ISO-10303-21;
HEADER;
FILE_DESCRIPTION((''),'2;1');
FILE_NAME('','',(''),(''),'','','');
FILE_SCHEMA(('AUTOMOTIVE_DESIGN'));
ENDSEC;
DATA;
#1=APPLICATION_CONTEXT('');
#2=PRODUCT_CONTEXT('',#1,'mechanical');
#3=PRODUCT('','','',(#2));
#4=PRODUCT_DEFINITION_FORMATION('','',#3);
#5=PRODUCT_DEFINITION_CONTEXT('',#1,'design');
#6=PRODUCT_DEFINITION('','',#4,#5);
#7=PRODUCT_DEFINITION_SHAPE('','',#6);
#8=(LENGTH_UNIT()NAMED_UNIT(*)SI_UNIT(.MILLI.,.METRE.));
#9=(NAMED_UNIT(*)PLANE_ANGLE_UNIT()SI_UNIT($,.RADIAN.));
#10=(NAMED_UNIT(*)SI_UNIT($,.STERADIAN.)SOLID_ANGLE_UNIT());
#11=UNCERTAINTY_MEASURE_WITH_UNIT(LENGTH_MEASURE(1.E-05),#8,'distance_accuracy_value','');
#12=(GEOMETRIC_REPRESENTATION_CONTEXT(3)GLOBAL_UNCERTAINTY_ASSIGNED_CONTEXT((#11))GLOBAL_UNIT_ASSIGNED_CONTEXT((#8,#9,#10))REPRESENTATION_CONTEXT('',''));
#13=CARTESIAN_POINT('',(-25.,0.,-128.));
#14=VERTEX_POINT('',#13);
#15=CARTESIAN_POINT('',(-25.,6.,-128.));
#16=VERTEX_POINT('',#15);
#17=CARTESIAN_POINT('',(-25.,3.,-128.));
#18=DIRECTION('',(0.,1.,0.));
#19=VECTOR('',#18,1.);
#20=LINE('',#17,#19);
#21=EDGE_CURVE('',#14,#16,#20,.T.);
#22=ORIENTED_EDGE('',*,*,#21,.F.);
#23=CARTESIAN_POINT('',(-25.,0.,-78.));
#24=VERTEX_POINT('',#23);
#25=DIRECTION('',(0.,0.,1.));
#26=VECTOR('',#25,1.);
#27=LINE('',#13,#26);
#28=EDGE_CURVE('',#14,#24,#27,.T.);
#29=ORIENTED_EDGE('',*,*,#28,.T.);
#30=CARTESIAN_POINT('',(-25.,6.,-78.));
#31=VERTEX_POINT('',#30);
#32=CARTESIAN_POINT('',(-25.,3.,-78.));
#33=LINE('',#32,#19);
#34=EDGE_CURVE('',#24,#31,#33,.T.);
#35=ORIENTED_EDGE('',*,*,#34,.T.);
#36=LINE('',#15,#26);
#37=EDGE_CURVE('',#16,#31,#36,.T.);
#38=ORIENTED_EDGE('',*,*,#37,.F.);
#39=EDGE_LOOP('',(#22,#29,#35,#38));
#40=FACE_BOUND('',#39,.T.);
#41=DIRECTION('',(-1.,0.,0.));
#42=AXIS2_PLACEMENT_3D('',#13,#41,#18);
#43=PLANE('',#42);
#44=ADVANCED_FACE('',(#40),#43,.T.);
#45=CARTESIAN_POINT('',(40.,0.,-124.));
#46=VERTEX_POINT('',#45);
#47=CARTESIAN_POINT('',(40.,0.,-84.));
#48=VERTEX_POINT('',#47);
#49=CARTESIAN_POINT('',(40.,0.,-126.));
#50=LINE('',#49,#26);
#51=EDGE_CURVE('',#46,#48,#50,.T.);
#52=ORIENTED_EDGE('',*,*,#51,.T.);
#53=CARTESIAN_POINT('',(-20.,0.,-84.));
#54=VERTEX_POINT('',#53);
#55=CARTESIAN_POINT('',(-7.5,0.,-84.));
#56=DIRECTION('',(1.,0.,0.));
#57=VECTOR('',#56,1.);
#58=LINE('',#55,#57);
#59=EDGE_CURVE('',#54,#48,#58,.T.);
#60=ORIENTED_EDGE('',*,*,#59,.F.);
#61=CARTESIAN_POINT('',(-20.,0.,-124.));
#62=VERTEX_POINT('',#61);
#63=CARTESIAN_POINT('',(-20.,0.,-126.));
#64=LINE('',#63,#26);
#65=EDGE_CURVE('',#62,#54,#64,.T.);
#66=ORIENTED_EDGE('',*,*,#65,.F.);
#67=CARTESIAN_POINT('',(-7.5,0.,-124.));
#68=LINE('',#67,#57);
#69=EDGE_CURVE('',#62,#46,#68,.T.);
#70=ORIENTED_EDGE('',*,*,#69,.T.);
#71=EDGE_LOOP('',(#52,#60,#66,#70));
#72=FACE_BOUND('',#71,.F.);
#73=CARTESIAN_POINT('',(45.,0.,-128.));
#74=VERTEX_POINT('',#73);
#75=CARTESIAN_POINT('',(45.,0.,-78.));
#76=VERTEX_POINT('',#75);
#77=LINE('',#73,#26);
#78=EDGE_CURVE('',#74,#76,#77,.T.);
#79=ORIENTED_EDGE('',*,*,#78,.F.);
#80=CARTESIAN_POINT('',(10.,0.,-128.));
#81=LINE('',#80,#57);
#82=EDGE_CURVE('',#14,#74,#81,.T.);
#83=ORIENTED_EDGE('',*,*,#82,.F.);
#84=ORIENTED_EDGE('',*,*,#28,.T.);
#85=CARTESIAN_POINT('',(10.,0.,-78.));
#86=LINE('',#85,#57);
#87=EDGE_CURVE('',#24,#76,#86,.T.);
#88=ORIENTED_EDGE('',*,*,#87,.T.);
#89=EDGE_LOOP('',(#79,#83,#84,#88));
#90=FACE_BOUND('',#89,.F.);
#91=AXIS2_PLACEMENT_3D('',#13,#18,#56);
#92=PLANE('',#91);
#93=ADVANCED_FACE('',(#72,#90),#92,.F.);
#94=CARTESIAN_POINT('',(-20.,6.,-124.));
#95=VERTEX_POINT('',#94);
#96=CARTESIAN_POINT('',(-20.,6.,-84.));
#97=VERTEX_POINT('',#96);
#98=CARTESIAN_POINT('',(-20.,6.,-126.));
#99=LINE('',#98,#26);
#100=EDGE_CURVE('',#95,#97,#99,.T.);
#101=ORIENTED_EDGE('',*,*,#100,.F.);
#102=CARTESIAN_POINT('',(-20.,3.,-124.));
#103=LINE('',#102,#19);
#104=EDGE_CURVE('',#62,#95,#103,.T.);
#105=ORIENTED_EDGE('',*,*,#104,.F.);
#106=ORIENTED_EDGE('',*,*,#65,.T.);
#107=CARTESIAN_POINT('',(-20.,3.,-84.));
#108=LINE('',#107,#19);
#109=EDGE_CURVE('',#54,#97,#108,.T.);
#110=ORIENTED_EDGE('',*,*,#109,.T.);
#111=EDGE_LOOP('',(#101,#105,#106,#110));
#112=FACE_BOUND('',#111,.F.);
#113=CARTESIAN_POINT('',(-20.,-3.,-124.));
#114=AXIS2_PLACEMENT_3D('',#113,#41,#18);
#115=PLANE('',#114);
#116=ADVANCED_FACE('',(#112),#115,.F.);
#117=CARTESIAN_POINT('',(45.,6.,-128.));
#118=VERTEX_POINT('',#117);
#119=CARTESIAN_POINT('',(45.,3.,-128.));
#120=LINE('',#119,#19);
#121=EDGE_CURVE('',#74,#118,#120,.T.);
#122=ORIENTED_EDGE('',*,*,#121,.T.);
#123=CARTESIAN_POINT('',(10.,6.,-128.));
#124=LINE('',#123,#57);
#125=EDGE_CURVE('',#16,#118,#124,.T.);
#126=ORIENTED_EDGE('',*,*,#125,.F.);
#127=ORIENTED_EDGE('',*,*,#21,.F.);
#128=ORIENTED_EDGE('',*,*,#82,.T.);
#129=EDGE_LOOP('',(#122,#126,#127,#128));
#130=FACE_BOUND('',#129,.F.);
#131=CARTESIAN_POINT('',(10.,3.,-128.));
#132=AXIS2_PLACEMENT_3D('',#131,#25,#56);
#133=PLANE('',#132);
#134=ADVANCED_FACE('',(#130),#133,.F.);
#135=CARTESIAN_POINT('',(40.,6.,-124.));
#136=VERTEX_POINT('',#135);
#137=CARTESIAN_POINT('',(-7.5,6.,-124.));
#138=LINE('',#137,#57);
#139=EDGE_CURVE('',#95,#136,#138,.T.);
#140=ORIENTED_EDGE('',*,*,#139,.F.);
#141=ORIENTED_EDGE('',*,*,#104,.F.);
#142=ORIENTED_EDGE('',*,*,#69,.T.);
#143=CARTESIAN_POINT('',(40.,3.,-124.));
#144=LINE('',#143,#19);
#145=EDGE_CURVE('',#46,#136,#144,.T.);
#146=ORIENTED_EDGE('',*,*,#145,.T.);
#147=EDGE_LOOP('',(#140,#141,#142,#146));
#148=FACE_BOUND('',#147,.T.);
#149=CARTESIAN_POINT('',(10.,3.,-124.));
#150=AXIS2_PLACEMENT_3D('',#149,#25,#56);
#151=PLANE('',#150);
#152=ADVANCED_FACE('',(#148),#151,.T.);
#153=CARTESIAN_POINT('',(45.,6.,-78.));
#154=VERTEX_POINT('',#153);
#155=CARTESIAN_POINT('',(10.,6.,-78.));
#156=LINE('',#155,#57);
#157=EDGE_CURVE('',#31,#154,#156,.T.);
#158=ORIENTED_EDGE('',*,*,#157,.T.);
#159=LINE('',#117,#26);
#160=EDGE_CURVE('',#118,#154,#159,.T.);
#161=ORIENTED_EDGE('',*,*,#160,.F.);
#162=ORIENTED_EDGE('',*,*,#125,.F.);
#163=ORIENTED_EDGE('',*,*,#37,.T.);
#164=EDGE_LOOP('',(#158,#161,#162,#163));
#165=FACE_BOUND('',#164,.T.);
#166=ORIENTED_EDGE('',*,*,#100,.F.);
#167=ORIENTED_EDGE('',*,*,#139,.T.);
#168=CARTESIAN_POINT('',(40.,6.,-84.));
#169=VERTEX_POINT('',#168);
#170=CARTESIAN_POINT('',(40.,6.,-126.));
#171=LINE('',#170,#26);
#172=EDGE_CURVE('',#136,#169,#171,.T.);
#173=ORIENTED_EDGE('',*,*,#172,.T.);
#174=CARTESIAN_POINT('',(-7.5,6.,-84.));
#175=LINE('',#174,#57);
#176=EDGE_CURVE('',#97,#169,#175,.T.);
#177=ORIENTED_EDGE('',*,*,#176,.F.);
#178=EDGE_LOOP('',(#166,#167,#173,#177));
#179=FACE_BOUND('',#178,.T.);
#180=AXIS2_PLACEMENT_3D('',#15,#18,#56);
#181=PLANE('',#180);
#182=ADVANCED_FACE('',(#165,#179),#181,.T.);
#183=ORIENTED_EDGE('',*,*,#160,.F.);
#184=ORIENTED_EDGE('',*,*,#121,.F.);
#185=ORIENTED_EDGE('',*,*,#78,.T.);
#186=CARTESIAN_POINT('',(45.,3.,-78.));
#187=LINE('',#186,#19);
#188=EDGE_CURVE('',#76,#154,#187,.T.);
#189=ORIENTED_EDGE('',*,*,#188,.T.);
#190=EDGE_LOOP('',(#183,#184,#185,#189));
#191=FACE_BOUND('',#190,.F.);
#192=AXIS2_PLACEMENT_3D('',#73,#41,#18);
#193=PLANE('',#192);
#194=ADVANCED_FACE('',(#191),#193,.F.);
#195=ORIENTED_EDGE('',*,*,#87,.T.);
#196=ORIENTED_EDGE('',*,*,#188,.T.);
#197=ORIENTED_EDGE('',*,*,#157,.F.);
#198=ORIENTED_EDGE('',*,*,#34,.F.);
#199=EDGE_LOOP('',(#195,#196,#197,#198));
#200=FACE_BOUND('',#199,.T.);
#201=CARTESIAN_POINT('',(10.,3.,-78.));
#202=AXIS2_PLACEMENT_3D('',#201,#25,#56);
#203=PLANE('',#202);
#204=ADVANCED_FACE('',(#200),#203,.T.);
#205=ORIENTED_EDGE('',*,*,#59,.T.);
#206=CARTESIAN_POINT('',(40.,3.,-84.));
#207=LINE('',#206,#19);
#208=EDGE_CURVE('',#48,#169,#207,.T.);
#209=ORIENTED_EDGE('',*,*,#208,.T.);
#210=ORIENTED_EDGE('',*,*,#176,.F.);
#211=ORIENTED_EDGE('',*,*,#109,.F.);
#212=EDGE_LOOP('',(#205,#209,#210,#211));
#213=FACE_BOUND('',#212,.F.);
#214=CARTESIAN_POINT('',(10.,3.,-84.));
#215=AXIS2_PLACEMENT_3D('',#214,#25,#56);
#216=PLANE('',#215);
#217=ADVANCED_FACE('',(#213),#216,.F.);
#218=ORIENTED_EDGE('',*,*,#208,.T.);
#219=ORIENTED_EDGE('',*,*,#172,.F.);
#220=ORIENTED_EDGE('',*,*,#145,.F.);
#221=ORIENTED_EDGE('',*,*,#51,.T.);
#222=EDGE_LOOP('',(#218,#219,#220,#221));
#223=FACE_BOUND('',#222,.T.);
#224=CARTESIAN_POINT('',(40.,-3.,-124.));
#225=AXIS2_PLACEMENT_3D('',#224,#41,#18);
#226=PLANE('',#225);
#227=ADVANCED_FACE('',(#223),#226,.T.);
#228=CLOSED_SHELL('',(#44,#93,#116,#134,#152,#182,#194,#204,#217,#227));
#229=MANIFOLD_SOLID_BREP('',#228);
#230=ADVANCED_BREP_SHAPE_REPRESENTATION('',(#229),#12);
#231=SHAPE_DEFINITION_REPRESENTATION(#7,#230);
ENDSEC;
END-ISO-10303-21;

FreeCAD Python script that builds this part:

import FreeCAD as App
import Part
import Sketcher
from FreeCAD import Vector


def add_polygon(sketch, points):
    """Adds a closed chain of lines whose ends are joined by coincident constraints."""
    first, n = sketch.GeometryCount, len(points)
    for a, b in zip(points, points[1:] + points[:1]):
        sketch.addGeometry(Part.LineSegment(App.Vector(*a, 0), App.Vector(*b, 0)), False)
    for i in range(n):
        sketch.addConstraint(Sketcher.Constraint("Coincident", first + i, 2, first + (i + 1) % n, 1))

doc = App.newDocument("Part")
body = doc.addObject("PartDesign::Body", "Body")

# Sketch on XY plane
sketch1 = doc.addObject("Sketcher::SketchObject", "Sketch")
body.addObject(sketch1)
sketch1.AttachmentSupport = (doc.XY_Plane, [""])
sketch1.MapMode = "FlatFace"
sketch1.AttachmentOffset = App.Placement(Vector(0, 0, -127), App.Rotation())
add_polygon(sketch1, [(-14, 9), (-14, -3), (46, -3), (46, 9)])  # lines 0-3
sketch1.addConstraint([
    Sketcher.Constraint("Vertical", 0),
    Sketcher.Constraint("Horizontal", 1),
    Sketcher.Constraint("Vertical", 2),
    Sketcher.Constraint("Horizontal", 3),
    Sketcher.Constraint("DistanceX", 1, 1, 1, 2, 60.0),
    Sketcher.Constraint("DistanceY", 0, 2, 0, 1, 12.0),
    Sketcher.Constraint("DistanceX", 0, 2, -1, 1, 14.0),
    Sketcher.Constraint("DistanceY", 0, 2, -1, 1, 3.0),
])
pad1 = doc.addObject("PartDesign::Pad", "Pad")
body.addObject(pad1)
pad1.Profile = sketch1
pad1.Length = 40
body2 = doc.addObject("PartDesign::Body", "Body001")

# Sketch on XY plane
sketch2 = doc.addObject("Sketcher::SketchObject", "Sketch001")
body2.addObject(sketch2)
sketch2.AttachmentSupport = (doc.getObject("XY_Plane001"), [""])
sketch2.MapMode = "FlatFace"
sketch2.AttachmentOffset = App.Placement(Vector(0, 0, -131), App.Rotation())
add_polygon(sketch2, [(-19, 6), (-19, 0), (51, 0), (51, 6)])  # lines 0-3
sketch2.addConstraint([
    Sketcher.Constraint("Vertical", 0),
    Sketcher.Constraint("Horizontal", 1),
    Sketcher.Constraint("Vertical", 2),
    Sketcher.Constraint("Horizontal", 3),
    Sketcher.Constraint("PointOnObject", 0, 2, -1),
    Sketcher.Constraint("DistanceX", 1, 1, 1, 2, 70.0),
    Sketcher.Constraint("DistanceY", 0, 2, 0, 1, 6.0),
    Sketcher.Constraint("DistanceX", 0, 2, -1, 1, 19.0),
])
pad2 = doc.addObject("PartDesign::Pad", "Pad001")
body2.addObject(pad2)
pad2.Profile = sketch2
pad2.Length = 50
doc.recompute()

boolean = doc.addObject("PartDesign::Boolean", "Boolean")
body2.addObject(boolean)
boolean.Type = "Cut"
boolean.addObjects([body])
body3 = doc.addObject("PartDesign::Body", "Body002")
doc.recompute()

body2.Placement = App.Placement(Vector(-6, 0, 3), App.Rotation(Vector(0, 0, 1), 0))
boolean2 = doc.addObject("PartDesign::Boolean", "Boolean001")
body3.addObject(boolean2)
boolean2.Type = "Fuse"
boolean2.addObjects([body2])

doc.recompute()
